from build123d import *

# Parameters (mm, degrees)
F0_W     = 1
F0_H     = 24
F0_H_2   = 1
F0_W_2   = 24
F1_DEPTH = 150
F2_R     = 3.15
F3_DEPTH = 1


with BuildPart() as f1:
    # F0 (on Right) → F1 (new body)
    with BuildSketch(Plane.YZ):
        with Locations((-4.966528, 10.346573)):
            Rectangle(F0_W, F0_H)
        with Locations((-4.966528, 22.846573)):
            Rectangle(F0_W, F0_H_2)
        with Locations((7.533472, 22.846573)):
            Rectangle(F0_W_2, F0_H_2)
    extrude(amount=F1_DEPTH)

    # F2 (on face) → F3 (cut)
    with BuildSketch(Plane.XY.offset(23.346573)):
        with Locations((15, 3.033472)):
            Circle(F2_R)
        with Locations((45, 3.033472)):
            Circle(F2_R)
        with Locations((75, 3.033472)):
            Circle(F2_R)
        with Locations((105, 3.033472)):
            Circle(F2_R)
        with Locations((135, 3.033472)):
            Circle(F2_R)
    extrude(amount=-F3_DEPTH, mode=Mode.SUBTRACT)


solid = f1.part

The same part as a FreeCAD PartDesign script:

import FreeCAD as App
import Part
import Sketcher
from FreeCAD import Vector
Q = App.Units.Quantity

doc = App.newDocument("Part")
body = doc.addObject("PartDesign::Body", "Body")

sketch1 = doc.addObject("Sketcher::SketchObject", "Sketch")
body.addObject(sketch1)
sketch1.AttachmentSupport = (doc.YZ_Plane, [""])
sketch1.MapMode = "FlatFace"
sketch1.addGeometry([
    Part.LineSegment(Vector(-5.5, -1.7, 0), Vector(-4.5, -1.7, 0)),
    Part.LineSegment(Vector(-4.5, -1.7, 0), Vector(-4.5, 22.3, 0)),
    Part.LineSegment(Vector(-4.5, 22.3, 0), Vector(19.5, 22.3, 0)),
    Part.LineSegment(Vector(19.5, 22.3, 0), Vector(19.5, 23.3, 0)),
    Part.LineSegment(Vector(19.5, 23.3, 0), Vector(-5.5, 23.3, 0)),
    Part.LineSegment(Vector(-5.5, 23.3, 0), Vector(-5.5, -1.7, 0)),
], False)
sketch1.addConstraint([
    Sketcher.Constraint("Coincident", 0, 2, 1, 1),
    Sketcher.Constraint("Coincident", 1, 2, 2, 1),
    Sketcher.Constraint("Coincident", 2, 2, 3, 1),
    Sketcher.Constraint("Coincident", 3, 2, 4, 1),
    Sketcher.Constraint("Coincident", 4, 2, 5, 1),
    Sketcher.Constraint("Coincident", 5, 2, 0, 1),
    Sketcher.Constraint("Horizontal", 0),
    Sketcher.Constraint("Vertical", 1),
    Sketcher.Constraint("Horizontal", 2),
    Sketcher.Constraint("Vertical", 3),
    Sketcher.Constraint("Horizontal", 4),
    Sketcher.Constraint("Vertical", 5),
    Sketcher.Constraint("Equal", 2, 1),
    Sketcher.Constraint("Equal", 0, 3),
    Sketcher.Constraint("DistanceX", 0, 1, 0, 2, Q("1 mm")),
    Sketcher.Constraint("DistanceX", 2, 1, 2, 2, Q("24 mm")),
    Sketcher.Constraint("DistanceX", 0, 2, -1, 1, Q("4.466528 mm")),
    Sketcher.Constraint("DistanceY", 0, 2, -1, 1, Q("1.653427 mm")),
])
pad1 = doc.addObject("PartDesign::Pad", "Pad")
body.addObject(pad1)
pad1.Profile = sketch1
pad1.Length = 150

sketch2 = doc.addObject("Sketcher::SketchObject", "Sketch001")
body.addObject(sketch2)
sketch2.AttachmentSupport = (doc.XY_Plane, [""])
sketch2.MapMode = "FlatFace"
sketch2.AttachmentOffset = App.Placement(Vector(0, 0, 23.346573), App.Rotation())
sketch2.addGeometry([
    Part.Circle(Vector(15, 3, 0), Vector(0, 0, 1), 3.1),
    Part.Circle(Vector(45, 3, 0), Vector(0, 0, 1), 3.1),
    Part.Circle(Vector(75, 3, 0), Vector(0, 0, 1), 3.1),
    Part.Circle(Vector(105, 3, 0), Vector(0, 0, 1), 3.1),
    Part.Circle(Vector(135, 3, 0), Vector(0, 0, 1), 3.1),
], False)
sketch2.addConstraint([
    Sketcher.Constraint("Equal", 0, 1),
    Sketcher.Constraint("Equal", 1, 2),
    Sketcher.Constraint("Equal", 2, 3),
    Sketcher.Constraint("Equal", 3, 4),
    Sketcher.Constraint("Horizontal", 0, 3, 1, 3),
    Sketcher.Constraint("Horizontal", 1, 3, 2, 3),
    Sketcher.Constraint("Horizontal", 2, 3, 3, 3),
    Sketcher.Constraint("Horizontal", 3, 3, 4, 3),
    Sketcher.Constraint("Diameter", 0, Q("6.3 mm")),
    Sketcher.Constraint("DistanceX", -1, 1, 0, 3, Q("15 mm")),
    Sketcher.Constraint("DistanceX", -1, 1, 1, 3, Q("45 mm")),
    Sketcher.Constraint("DistanceX", -1, 1, 2, 3, Q("75 mm")),
    Sketcher.Constraint("DistanceX", -1, 1, 3, 3, Q("105 mm")),
    Sketcher.Constraint("DistanceX", -1, 1, 4, 3, Q("135 mm")),
    Sketcher.Constraint("DistanceY", -1, 1, 0, 3, Q("3.033472 mm")),
])
pocket1 = doc.addObject("PartDesign::Pocket", "Pocket")
body.addObject(pocket1)
pocket1.Profile = sketch2
pocket1.Length = 1

doc.recompute()
